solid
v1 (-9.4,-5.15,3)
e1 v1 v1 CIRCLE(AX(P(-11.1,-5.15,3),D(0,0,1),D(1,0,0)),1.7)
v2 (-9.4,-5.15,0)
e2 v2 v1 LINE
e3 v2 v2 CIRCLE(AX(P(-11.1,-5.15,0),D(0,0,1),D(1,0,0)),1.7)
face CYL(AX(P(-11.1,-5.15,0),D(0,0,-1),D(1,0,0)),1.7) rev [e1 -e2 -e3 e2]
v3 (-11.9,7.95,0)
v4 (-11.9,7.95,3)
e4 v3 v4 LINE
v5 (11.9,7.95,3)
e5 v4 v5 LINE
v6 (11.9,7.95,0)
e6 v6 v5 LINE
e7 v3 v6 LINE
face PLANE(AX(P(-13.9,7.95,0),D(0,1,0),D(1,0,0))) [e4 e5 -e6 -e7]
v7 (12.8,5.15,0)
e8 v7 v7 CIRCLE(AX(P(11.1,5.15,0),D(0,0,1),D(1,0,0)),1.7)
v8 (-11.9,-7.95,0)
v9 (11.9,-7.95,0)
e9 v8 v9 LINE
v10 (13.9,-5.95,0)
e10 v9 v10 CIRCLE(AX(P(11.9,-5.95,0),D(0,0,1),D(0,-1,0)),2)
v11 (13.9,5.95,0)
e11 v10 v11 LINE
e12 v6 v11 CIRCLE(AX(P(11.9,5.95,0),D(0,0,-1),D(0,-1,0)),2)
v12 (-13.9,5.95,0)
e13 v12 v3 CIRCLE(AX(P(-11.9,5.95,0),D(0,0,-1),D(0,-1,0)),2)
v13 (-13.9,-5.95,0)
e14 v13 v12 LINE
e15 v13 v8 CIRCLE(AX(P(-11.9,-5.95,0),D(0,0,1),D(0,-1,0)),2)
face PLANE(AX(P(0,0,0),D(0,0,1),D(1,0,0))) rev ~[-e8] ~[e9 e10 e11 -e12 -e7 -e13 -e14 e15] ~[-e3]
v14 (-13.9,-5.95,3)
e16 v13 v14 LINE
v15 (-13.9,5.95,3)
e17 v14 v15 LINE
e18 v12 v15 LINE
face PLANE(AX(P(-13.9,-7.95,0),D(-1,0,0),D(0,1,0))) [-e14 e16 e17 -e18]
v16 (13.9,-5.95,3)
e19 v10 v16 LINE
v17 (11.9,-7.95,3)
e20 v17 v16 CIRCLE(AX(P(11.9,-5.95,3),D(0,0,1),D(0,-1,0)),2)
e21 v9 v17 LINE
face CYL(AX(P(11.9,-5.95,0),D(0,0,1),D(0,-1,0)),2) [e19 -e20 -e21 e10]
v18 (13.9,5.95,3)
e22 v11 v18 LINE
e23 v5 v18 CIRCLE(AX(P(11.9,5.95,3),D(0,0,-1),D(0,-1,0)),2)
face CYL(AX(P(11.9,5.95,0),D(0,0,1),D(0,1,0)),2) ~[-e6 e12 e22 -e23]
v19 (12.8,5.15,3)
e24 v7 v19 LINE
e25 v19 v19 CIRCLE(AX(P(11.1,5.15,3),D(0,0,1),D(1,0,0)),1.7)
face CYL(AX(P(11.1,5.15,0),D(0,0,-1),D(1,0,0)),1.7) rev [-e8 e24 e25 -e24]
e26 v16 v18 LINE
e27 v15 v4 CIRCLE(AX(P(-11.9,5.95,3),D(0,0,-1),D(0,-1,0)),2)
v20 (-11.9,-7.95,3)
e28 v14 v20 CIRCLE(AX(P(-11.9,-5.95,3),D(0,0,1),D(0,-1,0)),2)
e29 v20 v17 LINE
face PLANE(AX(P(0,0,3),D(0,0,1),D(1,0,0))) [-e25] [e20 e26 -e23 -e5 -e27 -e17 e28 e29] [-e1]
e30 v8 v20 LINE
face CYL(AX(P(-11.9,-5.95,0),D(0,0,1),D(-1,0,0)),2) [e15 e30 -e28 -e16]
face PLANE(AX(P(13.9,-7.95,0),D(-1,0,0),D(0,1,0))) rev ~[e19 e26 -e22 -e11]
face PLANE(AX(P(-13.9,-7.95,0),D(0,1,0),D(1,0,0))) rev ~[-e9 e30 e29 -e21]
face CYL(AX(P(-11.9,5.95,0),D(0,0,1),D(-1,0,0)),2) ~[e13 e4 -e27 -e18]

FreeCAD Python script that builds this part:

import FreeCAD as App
import Part
import Sketcher

V = App.Vector
Q = App.Units.Quantity


def edges_at(feature, points):
    """Names of the edges that pass closest to the given points."""
    edges = feature.Shape.Edges
    near = lambda p: min(range(len(edges)), key=lambda i: edges[i].distToShape(Part.Vertex(*p))[0])
    return sorted({f"Edge{near(p) + 1}" for p in points})

doc = App.newDocument("Part")
params = doc.addObject("Spreadsheet::Sheet", "Params")
for row, (alias, value) in enumerate([
    ("sketch1_diameter", "3.4 mm"),
    ("sketch1_width", "27.8 mm"),
    ("sketch1_height", "15.9 mm"),
    ("pad1_length", "3 mm"),
    ("fillet_radius", "2 mm"),
], start=1):
    params.set(f"A{row}", alias)
    params.set(f"B{row}", "=" + value)
    params.setAlias(f"B{row}", alias)

body = doc.addObject("PartDesign::Body", "Body")

sketch1 = body.newObject("Sketcher::SketchObject", "Sketch")
sketch1.AttachmentSupport = (doc.getObject("XY_Plane"), [""])
sketch1.MapMode = "FlatFace"
sketch1.addGeometry([
    Part.LineSegment(V(-13.9, 8, 0), V(-13.9, -8, 0)),
    Part.LineSegment(V(-13.9, -8, 0), V(13.9, -8, 0)),
    Part.LineSegment(V(13.9, -8, 0), V(13.9, 8, 0)),
    Part.LineSegment(V(13.9, 8, 0), V(-13.9, 8, 0)),
    Part.Circle(V(-11.1, -5.2, 0), V(0, 0, 1), 1.7),
    Part.Circle(V(11.1, 5.2, 0), V(0, 0, 1), 1.7),
], False)
sketch1.addConstraint([
    Sketcher.Constraint("Coincident", 0, 2, 1, 1),
    Sketcher.Constraint("Coincident", 1, 2, 2, 1),
    Sketcher.Constraint("Coincident", 2, 2, 3, 1),
    Sketcher.Constraint("Coincident", 3, 2, 0, 1),
    Sketcher.Constraint("Vertical", 0),
    Sketcher.Constraint("Horizontal", 1),
    Sketcher.Constraint("Vertical", 2),
    Sketcher.Constraint("Horizontal", 3),
    Sketcher.Constraint("Equal", 4, 5),
    Sketcher.Constraint("Symmetric", 4, 3, 5, 3, -1, 1),
    Sketcher.Constraint("Symmetric", 0, 2, 2, 2, -1, 1),
    Sketcher.Constraint("Diameter", 4, Q("3.4 mm")),
    Sketcher.Constraint("DistanceX", 1, 1, 1, 2, Q("27.8 mm")),
    Sketcher.Constraint("DistanceY", 0, 2, 0, 1, Q("15.9 mm")),
    Sketcher.Constraint("DistanceX", 0, 2, 5, 3, Q("25 mm")),
    Sketcher.Constraint("DistanceY", 4, 3, 5, 3, Q("10.3 mm")),
])
sketch1.setExpression("Constraints[11]", "Params.sketch1_diameter")
sketch1.setExpression("Constraints[12]", "Params.sketch1_width")
sketch1.setExpression("Constraints[13]", "Params.sketch1_height")
pad1 = body.newObject("PartDesign::Pad", "Pad")
pad1.Profile = sketch1
pad1.setExpression("Length", "Params.pad1_length")
doc.recompute()

fillet = body.newObject("PartDesign::Fillet", "Fillet")
fillet.Base = (pad1, edges_at(pad1, [
    (13.9, -7.95, 1.5),
    (13.9, 7.95, 1.5),
    (-13.9, -7.95, 1.5),
    (-13.9, 7.95, 1.5),
]))
fillet.setExpression("Radius", "Params.fillet_radius")

doc.recompute()
